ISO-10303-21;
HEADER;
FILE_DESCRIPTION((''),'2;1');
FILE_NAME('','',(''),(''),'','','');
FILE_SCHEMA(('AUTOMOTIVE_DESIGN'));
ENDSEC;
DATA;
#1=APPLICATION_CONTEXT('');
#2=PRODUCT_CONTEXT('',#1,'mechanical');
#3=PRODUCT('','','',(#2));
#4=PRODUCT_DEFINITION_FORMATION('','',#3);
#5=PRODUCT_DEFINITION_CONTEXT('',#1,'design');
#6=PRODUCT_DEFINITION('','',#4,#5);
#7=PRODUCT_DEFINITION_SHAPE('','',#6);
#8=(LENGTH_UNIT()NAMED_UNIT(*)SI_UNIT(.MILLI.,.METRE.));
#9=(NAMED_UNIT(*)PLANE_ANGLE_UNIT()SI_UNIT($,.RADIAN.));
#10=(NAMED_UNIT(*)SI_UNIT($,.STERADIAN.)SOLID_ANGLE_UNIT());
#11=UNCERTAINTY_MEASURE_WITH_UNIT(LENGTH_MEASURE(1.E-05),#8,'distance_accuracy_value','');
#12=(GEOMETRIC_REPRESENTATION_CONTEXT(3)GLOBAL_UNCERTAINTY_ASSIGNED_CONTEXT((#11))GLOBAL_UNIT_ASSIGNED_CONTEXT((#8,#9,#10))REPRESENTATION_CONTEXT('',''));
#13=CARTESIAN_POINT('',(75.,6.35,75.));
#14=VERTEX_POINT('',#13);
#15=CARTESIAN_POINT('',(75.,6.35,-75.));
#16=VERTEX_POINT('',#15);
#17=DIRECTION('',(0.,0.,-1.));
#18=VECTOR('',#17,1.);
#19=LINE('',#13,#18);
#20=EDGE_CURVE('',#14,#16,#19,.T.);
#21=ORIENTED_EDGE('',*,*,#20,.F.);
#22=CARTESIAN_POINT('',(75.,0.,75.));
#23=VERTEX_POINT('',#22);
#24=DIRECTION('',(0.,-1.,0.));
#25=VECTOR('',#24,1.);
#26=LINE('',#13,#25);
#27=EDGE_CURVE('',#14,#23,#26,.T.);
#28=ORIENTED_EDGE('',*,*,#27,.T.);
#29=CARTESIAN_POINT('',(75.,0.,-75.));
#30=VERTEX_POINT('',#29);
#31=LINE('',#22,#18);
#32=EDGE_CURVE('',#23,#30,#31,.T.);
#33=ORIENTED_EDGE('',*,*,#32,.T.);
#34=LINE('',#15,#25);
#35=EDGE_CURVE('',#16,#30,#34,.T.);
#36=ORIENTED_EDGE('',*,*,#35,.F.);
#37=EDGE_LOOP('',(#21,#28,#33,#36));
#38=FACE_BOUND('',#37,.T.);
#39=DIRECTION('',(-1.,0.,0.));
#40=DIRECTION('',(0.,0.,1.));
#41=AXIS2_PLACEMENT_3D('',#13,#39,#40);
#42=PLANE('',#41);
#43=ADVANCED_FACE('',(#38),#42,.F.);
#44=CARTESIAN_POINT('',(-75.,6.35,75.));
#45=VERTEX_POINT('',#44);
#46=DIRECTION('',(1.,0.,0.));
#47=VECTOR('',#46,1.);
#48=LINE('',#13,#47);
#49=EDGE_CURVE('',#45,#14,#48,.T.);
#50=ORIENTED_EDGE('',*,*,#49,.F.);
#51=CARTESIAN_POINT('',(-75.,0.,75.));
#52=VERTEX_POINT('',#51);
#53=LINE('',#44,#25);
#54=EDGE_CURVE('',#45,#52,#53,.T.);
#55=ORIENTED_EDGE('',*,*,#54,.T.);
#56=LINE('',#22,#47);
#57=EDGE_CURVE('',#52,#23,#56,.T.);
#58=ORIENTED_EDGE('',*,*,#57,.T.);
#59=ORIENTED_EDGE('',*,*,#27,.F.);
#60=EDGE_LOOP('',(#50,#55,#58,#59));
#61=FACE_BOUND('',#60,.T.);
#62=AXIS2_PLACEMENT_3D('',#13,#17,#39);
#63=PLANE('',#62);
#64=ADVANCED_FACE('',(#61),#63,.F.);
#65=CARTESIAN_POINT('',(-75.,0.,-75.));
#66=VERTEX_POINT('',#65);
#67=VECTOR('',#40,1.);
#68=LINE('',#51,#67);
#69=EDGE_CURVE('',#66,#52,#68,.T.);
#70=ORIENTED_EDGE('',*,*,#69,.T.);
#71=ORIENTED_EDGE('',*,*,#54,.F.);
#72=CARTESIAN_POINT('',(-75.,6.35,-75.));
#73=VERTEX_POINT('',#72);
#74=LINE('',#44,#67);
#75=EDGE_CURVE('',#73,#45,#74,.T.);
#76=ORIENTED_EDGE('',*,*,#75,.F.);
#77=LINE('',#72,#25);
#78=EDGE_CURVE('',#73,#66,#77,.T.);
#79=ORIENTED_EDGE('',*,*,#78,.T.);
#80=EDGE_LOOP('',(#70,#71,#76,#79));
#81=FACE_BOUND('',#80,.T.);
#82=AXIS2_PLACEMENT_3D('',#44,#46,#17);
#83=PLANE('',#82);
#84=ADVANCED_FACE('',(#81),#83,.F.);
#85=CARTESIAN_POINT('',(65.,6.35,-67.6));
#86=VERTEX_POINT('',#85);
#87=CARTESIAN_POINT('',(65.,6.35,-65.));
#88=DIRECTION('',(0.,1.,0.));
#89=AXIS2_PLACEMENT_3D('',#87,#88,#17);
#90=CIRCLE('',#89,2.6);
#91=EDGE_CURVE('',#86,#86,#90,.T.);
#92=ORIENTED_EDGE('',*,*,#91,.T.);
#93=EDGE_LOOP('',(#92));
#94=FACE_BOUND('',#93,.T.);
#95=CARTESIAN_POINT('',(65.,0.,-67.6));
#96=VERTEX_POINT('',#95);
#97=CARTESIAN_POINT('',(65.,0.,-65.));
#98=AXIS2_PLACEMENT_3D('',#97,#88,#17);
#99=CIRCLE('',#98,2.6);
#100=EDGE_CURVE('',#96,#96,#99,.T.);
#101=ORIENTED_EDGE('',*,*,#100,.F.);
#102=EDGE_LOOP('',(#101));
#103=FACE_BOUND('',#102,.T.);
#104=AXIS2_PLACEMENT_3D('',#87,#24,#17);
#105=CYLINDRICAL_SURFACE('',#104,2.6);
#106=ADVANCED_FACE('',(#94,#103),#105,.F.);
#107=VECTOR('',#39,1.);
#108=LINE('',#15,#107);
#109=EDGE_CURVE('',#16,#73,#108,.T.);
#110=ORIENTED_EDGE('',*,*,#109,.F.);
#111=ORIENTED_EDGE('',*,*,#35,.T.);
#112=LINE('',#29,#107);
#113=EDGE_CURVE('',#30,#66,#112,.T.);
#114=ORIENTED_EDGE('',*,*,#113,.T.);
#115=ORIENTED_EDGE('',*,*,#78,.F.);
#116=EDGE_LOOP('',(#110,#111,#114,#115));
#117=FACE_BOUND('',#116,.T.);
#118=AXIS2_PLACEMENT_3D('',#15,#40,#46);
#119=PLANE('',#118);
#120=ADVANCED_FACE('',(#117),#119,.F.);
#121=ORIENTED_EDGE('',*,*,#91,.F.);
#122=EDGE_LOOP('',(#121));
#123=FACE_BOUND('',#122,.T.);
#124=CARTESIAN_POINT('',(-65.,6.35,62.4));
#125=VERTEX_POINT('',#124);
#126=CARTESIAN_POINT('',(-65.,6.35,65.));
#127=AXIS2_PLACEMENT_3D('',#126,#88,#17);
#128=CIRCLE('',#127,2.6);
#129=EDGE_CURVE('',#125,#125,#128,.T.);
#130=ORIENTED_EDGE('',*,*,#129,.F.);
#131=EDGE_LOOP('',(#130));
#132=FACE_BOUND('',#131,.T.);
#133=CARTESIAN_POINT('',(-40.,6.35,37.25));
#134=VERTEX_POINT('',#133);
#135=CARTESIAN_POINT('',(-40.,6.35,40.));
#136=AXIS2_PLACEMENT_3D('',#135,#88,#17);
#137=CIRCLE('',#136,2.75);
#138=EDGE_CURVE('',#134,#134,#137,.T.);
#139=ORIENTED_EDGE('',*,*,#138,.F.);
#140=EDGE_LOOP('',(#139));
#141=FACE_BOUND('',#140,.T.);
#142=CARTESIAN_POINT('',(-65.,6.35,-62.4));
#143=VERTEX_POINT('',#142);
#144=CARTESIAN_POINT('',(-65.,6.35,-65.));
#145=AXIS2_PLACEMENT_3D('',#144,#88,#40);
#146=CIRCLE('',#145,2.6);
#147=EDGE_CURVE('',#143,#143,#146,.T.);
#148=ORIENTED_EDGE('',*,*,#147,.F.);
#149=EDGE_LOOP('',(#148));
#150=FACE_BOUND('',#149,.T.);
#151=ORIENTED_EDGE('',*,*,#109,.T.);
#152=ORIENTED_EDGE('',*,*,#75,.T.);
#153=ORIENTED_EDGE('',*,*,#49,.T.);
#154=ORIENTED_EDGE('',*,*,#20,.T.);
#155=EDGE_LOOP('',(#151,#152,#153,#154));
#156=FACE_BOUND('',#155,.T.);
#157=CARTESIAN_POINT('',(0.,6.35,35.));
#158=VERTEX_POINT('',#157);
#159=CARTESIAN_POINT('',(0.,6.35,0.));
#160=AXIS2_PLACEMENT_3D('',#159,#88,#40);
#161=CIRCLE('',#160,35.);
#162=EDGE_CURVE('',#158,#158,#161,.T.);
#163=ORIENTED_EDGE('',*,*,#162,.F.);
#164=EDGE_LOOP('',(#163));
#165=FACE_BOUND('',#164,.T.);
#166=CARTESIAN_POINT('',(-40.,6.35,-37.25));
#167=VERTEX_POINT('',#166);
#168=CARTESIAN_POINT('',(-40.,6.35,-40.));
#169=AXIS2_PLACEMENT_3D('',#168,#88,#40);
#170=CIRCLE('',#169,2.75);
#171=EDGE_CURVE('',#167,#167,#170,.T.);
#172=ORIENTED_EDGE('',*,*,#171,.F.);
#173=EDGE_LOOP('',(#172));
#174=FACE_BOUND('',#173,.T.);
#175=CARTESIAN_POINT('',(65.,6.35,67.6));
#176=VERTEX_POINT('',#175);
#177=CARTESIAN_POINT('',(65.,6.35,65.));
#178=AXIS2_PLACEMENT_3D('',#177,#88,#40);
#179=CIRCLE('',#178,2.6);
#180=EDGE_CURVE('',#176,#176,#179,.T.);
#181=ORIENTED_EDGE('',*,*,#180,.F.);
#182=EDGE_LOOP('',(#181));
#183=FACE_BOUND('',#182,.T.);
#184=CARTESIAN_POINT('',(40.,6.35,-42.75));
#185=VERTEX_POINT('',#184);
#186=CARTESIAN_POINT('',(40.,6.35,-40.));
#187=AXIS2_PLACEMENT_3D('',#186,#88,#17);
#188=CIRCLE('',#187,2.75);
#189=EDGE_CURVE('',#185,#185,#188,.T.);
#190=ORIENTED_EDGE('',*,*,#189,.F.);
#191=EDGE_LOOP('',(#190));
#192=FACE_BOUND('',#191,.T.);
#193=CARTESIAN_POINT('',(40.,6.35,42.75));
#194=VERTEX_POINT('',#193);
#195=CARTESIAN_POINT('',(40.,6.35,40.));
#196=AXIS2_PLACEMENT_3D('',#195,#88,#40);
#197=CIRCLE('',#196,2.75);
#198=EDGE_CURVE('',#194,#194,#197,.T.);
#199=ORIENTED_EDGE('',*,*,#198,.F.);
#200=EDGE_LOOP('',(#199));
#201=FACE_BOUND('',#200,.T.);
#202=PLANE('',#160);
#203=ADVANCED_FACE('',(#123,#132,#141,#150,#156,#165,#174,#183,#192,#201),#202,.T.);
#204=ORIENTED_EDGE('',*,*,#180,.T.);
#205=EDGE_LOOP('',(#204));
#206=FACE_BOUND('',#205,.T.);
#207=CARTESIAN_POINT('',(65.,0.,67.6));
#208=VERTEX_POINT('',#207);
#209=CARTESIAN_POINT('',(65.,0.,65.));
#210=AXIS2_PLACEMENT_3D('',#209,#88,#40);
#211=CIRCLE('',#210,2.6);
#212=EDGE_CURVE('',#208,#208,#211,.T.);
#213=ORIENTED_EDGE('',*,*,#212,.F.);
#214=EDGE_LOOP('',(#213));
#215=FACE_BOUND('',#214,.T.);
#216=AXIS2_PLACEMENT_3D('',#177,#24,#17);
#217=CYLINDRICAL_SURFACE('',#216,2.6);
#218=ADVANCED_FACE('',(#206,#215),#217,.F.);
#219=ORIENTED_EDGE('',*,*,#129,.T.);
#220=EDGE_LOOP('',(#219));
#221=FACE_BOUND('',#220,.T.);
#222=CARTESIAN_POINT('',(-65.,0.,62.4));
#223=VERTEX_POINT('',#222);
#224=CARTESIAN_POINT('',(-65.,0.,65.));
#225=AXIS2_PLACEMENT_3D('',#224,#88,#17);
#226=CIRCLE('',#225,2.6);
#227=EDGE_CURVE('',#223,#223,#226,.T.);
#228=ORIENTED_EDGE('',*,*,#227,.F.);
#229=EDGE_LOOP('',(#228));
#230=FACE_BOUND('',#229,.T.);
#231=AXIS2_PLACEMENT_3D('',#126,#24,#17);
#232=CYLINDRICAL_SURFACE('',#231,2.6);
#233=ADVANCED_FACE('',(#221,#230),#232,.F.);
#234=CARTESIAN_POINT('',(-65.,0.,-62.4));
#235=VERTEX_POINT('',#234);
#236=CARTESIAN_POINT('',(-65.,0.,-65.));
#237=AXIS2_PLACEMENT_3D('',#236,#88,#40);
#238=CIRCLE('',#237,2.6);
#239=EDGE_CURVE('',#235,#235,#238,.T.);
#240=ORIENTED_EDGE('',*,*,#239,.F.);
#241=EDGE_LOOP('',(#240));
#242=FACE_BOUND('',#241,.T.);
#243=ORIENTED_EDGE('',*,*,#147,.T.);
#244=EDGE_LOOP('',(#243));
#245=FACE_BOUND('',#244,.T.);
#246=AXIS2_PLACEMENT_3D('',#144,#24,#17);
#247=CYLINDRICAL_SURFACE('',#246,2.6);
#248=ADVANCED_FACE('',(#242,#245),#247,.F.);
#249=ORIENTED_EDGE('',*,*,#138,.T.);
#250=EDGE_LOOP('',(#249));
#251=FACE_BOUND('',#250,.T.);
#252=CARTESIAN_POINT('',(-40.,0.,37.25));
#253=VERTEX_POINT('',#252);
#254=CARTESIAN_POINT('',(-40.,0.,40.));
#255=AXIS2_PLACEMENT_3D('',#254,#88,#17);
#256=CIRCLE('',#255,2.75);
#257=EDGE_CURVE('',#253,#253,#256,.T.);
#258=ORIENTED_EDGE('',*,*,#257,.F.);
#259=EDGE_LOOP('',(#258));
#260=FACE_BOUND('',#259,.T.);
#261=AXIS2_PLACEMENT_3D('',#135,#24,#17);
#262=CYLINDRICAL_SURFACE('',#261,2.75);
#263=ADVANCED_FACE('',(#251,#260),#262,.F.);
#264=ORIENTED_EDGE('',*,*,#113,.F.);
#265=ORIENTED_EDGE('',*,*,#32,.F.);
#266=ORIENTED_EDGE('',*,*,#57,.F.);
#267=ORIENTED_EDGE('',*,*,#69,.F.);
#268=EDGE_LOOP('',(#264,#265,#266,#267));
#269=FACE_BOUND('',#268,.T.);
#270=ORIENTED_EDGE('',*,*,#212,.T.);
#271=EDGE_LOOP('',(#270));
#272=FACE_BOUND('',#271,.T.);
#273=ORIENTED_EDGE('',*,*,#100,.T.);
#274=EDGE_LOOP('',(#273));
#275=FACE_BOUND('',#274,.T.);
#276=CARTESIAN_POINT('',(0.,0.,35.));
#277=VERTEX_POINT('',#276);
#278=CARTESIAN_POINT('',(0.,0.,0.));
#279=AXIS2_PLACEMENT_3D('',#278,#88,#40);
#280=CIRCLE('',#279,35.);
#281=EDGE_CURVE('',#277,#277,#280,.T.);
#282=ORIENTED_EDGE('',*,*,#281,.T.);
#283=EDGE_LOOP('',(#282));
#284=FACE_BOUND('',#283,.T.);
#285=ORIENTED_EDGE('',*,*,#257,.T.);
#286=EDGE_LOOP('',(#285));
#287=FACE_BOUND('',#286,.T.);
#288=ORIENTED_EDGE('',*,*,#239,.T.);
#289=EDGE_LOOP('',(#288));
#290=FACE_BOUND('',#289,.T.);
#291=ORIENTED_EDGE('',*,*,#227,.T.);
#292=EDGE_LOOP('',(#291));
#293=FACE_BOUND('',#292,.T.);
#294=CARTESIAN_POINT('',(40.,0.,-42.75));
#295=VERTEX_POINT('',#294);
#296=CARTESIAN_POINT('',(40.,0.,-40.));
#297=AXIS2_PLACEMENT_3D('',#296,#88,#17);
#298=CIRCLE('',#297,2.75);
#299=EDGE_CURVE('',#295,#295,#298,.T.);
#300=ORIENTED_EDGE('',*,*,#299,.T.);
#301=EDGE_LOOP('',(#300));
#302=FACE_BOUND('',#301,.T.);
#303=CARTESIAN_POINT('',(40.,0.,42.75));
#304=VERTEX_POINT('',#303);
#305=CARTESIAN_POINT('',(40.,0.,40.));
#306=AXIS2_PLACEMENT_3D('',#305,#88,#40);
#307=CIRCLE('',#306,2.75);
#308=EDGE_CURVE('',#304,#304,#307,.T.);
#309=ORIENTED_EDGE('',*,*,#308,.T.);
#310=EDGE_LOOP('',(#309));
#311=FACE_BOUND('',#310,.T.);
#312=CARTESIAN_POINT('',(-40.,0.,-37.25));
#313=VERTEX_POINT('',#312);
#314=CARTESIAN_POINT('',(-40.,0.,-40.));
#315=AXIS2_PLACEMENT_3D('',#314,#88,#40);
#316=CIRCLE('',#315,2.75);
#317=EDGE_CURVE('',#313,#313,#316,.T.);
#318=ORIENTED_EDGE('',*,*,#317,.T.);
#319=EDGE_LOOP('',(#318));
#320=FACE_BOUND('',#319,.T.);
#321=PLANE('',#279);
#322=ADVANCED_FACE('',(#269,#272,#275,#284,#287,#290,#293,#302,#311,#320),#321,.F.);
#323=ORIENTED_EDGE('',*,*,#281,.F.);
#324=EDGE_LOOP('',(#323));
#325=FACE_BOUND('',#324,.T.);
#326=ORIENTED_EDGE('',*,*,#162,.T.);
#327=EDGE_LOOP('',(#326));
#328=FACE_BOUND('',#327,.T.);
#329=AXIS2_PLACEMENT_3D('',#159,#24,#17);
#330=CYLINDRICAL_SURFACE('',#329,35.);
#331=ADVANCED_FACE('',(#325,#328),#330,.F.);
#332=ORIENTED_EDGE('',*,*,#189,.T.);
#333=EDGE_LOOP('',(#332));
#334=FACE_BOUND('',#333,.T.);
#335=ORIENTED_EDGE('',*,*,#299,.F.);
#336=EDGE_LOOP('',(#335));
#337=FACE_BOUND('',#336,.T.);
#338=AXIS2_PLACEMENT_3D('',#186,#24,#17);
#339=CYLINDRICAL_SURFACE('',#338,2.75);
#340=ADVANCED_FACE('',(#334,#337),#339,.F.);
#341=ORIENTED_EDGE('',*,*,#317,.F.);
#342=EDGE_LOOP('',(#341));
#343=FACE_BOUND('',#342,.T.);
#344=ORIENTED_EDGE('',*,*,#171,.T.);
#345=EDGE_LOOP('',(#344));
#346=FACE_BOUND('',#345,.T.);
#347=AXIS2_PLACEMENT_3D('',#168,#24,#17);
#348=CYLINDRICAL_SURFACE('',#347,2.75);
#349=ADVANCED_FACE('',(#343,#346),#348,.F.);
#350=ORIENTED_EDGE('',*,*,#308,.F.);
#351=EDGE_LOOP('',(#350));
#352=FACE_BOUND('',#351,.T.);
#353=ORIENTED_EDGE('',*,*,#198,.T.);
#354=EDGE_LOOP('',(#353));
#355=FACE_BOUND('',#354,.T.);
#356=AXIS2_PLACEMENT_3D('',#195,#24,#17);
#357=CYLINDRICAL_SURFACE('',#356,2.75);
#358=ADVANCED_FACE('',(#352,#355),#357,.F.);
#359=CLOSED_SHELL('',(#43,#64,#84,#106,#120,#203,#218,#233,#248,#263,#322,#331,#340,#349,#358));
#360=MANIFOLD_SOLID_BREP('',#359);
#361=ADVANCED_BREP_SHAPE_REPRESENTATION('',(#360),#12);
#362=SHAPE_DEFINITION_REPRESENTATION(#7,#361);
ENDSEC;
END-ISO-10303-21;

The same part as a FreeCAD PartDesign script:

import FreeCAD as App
import Part
import Sketcher

doc = App.newDocument("Part")
params = doc.addObject("Spreadsheet::Sheet", "Params")
for row, (alias, value) in enumerate([
    ("sketch1_diameter", "70 mm"),
    ("sketch1_diameter2", "5.2 mm"),
    ("sketch1_diameter3", "5.5 mm"),
    ("sketch1_width", "150 mm"),
    ("pad1_length", "6.35 mm"),
], start=1):
    params.set(f"A{row}", alias)
    params.set(f"B{row}", "=" + value)
    params.setAlias(f"B{row}", alias)

body = doc.addObject("PartDesign::Body", "Body")

sketch1 = body.newObject("Sketcher::SketchObject", "Sketch")
sketch1.AttachmentSupport = (doc.getObject("XZ_Plane"), [""])
sketch1.MapMode = "FlatFace"
sketch1.addGeometry([
    Part.LineSegment(App.Vector(-75, -75, 0), App.Vector(-75, 75, 0)),
    Part.LineSegment(App.Vector(-75, 75, 0), App.Vector(75, 75, 0)),
    Part.LineSegment(App.Vector(75, 75, 0), App.Vector(75, -75, 0)),
    Part.LineSegment(App.Vector(75, -75, 0), App.Vector(-75, -75, 0)),
    Part.Circle(App.Vector(-65, 65, 0), App.Vector(0, 0, 1), 2.6),
    Part.Circle(App.Vector(-40, 40, 0), App.Vector(0, 0, 1), 2.8),
    Part.Circle(App.Vector(65, 65, 0), App.Vector(0, 0, 1), 2.6),
    Part.Circle(App.Vector(40, 40, 0), App.Vector(0, 0, 1), 2.8),
    Part.Circle(App.Vector(-40, -40, 0), App.Vector(0, 0, 1), 2.8),
    Part.Circle(App.Vector(-65, -65, 0), App.Vector(0, 0, 1), 2.6),
    Part.Circle(App.Vector(0, 0, 0), App.Vector(0, 0, 1), 35),
    Part.Circle(App.Vector(40, -40, 0), App.Vector(0, 0, 1), 2.8),
    Part.Circle(App.Vector(65, -65, 0), App.Vector(0, 0, 1), 2.6),
], False)
sketch1.addConstraint([
    Sketcher.Constraint("Coincident", 0, 2, 1, 1),
    Sketcher.Constraint("Coincident", 1, 2, 2, 1),
    Sketcher.Constraint("Coincident", 2, 2, 3, 1),
    Sketcher.Constraint("Coincident", 3, 2, 0, 1),
    Sketcher.Constraint("Vertical", 0),
    Sketcher.Constraint("Horizontal", 1),
    Sketcher.Constraint("Vertical", 2),
    Sketcher.Constraint("Horizontal", 3),
    Sketcher.Constraint("Coincident", 10, 3, -1, 1),
    Sketcher.Constraint("Equal", 4, 6),
    Sketcher.Constraint("Equal", 5, 7),
    Sketcher.Constraint("Equal", 7, 8),
    Sketcher.Constraint("Equal", 6, 9),
    Sketcher.Constraint("Equal", 8, 11),
    Sketcher.Constraint("Equal", 9, 12),
    Sketcher.Constraint("Symmetric", 7, 3, 8, 3, -1, 1),
    Sketcher.Constraint("Symmetric", 6, 3, 9, 3, -1, 1),
    Sketcher.Constraint("Symmetric", 5, 3, 11, 3, -1, 1),
    Sketcher.Constraint("Symmetric", 4, 3, 12, 3, -1, 1),
    Sketcher.Constraint("Symmetric", 0, 2, 2, 2, -1, 1),
    Sketcher.Constraint("Symmetric", 4, 3, 6, 3, -2),
    Sketcher.Constraint("Symmetric", 5, 3, 7, 3, -2),
    Sketcher.Constraint("Equal", 3, 0),
    Sketcher.Constraint("Diameter", 10, 70.0),
    Sketcher.Constraint("Diameter", 4, 5.2),
    Sketcher.Constraint("Diameter", 5, 5.5),
    Sketcher.Constraint("DistanceX", 1, 1, 1, 2, 150.0),
    Sketcher.Constraint("DistanceX", 4, 3, -1, 1, 65.0),
    Sketcher.Constraint("DistanceY", -1, 1, 4, 3, 65.0),
    Sketcher.Constraint("DistanceX", 5, 3, -1, 1, 40.0),
    Sketcher.Constraint("DistanceY", -1, 1, 5, 3, 40.0),
])
sketch1.setExpression("Constraints[23]", "Params.sketch1_diameter")
sketch1.setExpression("Constraints[24]", "Params.sketch1_diameter2")
sketch1.setExpression("Constraints[25]", "Params.sketch1_diameter3")
sketch1.setExpression("Constraints[26]", "Params.sketch1_width")
pad1 = body.newObject("PartDesign::Pad", "Pad")
pad1.Profile = sketch1
pad1.setExpression("Length", "Params.pad1_length")
pad1.Reversed = True

doc.recompute()
